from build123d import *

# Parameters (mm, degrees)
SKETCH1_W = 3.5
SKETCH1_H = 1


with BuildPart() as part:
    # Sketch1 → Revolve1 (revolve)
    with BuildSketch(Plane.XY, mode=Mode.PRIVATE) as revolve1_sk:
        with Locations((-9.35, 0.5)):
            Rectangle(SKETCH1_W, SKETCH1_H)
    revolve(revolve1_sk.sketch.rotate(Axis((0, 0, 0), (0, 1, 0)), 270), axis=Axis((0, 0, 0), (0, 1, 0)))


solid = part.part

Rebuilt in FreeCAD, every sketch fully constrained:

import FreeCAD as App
import Part
import Sketcher

V = App.Vector

doc = App.newDocument("Part")
body = doc.addObject("PartDesign::Body", "Body")

sketch1 = doc.addObject("Sketcher::SketchObject", "Sketch")
body.addObject(sketch1)
sketch1.AttachmentSupport = (doc.XY_Plane, [""])
sketch1.MapMode = "FlatFace"
sketch1.addGeometry([
    Part.LineSegment(V(-11.1, 1, 0), V(-11.1, 0, 0)),
    Part.LineSegment(V(-11.1, 0, 0), V(-7.6, 0, 0)),
    Part.LineSegment(V(-7.6, 0, 0), V(-7.6, 1, 0)),
    Part.LineSegment(V(-7.6, 1, 0), V(-11.1, 1, 0)),
], False)
sketch1.addConstraint([
    Sketcher.Constraint("Coincident", 0, 2, 1, 1),
    Sketcher.Constraint("Coincident", 1, 2, 2, 1),
    Sketcher.Constraint("Coincident", 2, 2, 3, 1),
    Sketcher.Constraint("Coincident", 3, 2, 0, 1),
    Sketcher.Constraint("Vertical", 0),
    Sketcher.Constraint("Horizontal", 1),
    Sketcher.Constraint("Vertical", 2),
    Sketcher.Constraint("Horizontal", 3),
    Sketcher.Constraint("PointOnObject", 0, 2, -1),
    Sketcher.Constraint("DistanceY", 0, 2, 0, 1, 1.0),
    Sketcher.Constraint("DistanceX", 1, 1, 1, 2, 3.5),
    Sketcher.Constraint("DistanceX", 0, 2, -1, 1, 11.1),
])
revolution = doc.addObject("PartDesign::Revolution", "Revolution")
body.addObject(revolution)
revolution.Profile = sketch1
revolution.ReferenceAxis = (sketch1, ["V_Axis"])
revolution.Angle = 360

doc.recompute()
